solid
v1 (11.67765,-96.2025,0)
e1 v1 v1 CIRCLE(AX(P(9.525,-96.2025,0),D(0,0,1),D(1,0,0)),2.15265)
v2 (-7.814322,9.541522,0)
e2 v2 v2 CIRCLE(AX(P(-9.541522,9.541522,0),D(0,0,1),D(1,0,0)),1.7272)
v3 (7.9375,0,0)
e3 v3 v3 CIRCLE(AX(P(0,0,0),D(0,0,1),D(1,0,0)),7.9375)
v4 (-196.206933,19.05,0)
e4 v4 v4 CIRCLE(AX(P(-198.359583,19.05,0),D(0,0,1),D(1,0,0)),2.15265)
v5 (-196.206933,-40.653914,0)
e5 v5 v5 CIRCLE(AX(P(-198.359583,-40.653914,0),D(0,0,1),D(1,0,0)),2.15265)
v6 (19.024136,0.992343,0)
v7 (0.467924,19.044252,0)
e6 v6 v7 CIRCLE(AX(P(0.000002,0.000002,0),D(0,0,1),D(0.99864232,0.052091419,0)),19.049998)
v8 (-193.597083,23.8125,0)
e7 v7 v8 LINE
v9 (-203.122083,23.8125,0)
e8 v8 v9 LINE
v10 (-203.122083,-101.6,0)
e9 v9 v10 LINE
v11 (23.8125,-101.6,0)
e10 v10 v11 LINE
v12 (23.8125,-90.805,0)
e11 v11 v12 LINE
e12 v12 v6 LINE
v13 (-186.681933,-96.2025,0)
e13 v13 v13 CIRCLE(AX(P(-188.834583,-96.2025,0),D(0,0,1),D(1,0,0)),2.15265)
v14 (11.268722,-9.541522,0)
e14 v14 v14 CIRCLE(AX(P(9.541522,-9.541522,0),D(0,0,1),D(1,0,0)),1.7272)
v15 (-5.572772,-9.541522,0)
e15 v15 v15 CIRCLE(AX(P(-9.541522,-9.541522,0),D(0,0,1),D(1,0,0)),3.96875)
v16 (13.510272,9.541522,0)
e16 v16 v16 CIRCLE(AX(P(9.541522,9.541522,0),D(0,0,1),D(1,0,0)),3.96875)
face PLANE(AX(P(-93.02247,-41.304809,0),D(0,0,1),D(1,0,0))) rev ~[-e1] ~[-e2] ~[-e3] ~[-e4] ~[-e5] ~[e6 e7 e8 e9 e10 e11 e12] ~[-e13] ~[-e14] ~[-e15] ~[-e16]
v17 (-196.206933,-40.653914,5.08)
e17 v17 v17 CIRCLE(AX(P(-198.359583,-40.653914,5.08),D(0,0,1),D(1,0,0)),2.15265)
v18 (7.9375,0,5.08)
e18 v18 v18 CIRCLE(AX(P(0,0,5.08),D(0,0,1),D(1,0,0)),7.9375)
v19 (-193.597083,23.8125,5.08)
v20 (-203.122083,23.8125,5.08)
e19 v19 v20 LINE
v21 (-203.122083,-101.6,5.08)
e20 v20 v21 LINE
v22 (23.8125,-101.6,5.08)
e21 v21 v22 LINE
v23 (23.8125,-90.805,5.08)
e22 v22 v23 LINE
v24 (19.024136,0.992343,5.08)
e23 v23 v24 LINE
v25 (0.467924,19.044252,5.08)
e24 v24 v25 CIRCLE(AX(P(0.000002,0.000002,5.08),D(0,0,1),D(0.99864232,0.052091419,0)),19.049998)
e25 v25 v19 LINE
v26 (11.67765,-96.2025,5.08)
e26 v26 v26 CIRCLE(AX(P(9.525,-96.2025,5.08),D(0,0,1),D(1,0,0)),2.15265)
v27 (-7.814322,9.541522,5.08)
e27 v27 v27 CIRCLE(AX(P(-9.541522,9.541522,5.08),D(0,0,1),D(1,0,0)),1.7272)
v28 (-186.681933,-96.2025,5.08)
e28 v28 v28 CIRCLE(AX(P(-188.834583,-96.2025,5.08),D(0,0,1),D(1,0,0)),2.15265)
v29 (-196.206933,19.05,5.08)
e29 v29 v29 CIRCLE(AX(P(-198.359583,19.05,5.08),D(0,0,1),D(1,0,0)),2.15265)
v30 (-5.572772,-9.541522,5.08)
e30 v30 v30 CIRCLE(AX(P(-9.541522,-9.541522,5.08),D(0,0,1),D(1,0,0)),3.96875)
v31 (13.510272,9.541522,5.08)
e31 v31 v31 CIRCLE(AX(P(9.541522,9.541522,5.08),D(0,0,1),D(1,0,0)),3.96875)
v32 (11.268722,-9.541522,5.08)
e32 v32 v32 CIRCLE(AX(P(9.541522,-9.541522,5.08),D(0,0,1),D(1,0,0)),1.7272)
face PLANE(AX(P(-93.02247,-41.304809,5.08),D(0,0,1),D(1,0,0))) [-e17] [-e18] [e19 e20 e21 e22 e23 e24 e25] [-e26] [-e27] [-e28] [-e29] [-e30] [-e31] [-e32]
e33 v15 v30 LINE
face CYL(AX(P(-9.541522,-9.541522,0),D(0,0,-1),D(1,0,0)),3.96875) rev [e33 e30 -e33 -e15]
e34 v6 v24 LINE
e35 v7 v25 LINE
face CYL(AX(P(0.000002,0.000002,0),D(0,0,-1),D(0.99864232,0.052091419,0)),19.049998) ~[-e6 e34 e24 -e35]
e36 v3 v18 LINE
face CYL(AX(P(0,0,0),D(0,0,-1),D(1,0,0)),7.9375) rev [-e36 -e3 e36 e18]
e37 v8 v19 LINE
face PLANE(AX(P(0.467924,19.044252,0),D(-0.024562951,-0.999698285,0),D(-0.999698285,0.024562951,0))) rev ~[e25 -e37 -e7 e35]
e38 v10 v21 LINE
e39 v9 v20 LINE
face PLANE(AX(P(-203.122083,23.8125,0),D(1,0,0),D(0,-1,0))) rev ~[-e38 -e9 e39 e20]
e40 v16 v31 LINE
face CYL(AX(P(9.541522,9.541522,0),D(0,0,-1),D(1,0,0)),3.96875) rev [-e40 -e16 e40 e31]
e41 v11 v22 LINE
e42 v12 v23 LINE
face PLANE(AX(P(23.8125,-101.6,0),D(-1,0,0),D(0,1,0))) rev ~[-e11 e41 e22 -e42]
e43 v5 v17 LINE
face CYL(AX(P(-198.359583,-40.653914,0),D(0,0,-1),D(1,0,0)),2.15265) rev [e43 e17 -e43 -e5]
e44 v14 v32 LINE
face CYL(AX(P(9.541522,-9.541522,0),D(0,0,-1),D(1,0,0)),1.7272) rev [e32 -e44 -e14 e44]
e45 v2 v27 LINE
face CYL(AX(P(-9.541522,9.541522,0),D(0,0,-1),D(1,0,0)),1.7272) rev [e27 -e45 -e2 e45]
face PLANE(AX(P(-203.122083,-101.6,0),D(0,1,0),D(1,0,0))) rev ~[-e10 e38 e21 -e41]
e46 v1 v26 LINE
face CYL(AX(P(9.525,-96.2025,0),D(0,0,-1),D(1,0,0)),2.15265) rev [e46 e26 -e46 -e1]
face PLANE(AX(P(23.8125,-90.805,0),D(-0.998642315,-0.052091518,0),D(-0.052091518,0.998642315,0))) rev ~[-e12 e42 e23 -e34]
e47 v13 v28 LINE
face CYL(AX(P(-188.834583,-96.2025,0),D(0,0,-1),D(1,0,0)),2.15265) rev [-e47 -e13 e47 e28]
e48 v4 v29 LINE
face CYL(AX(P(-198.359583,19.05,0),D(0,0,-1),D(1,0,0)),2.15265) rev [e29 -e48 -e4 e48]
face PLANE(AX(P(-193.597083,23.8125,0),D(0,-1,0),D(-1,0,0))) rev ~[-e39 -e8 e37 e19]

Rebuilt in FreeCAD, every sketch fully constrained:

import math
import FreeCAD as App
import Part
import Sketcher
from FreeCAD import Vector
Q = App.Units.Quantity

doc = App.newDocument("Part")
params = doc.addObject("Spreadsheet::Sheet", "Params")
for row, (alias, value) in enumerate([
    ("sketch1_radius", "0.7499999 in"),
    ("sketch1_diameter", "0.3125 in"),
    ("sketch1_diameter2", "0.136 in"),
    ("sketch1_diameter3", "0.625 in"),
    ("sketch1_width", "0.375 in"),
    ("pad1_length", "0.2 in"),
], start=1):
    params.set(f"A{row}", alias)
    params.set(f"B{row}", "=" + value)
    params.setAlias(f"B{row}", alias)

body = doc.addObject("PartDesign::Body", "Body")

# Sketch on XY plane
sketch1 = body.newObject("Sketcher::SketchObject", "Sketch")
sketch1.AttachmentSupport = (doc.getObject("XY_Plane"), [""])
sketch1.MapMode = "FlatFace"
sketch1.addGeometry(Part.LineSegment(Vector(0.5, 19, 0), Vector(-193.6, 23.8, 0)), False)
sketch1.addGeometry(Part.LineSegment(Vector(-193.6, 23.8, 0), Vector(-203.1, 23.8, 0)), False)
sketch1.addGeometry(Part.LineSegment(Vector(-203.1, 23.8, 0), Vector(-203.1, -101.6, 0)), False)
sketch1.addGeometry(Part.LineSegment(Vector(-203.1, -101.6, 0), Vector(23.8, -101.6, 0)), False)
sketch1.addGeometry(Part.LineSegment(Vector(23.8, -101.6, 0), Vector(23.8, -90.8, 0)), False)
sketch1.addGeometry(Part.LineSegment(Vector(23.8, -90.8, 0), Vector(19, 1, 0)), False)
sketch1.addGeometry(Part.ArcOfCircle(Part.Circle(Vector(0, 0, 0), Vector(0, 0, 1), 19), math.radians(3), math.radians(89)), False)
sketch1.addGeometry(Part.Circle(Vector(-188.8, -96.2, 0), Vector(0, 0, 1), 2.2), False)
sketch1.addGeometry(Part.Circle(Vector(-198.4, -40.7, 0), Vector(0, 0, 1), 2.2), False)
sketch1.addGeometry(Part.Circle(Vector(9.5, -96.2, 0), Vector(0, 0, 1), 2.2), False)
sketch1.addGeometry(Part.Circle(Vector(-198.4, 19.1, 0), Vector(0, 0, 1), 2.2), False)
sketch1.addGeometry(Part.Circle(Vector(-9.5, -9.5, 0), Vector(0, 0, 1), 4), False)
sketch1.addGeometry(Part.Circle(Vector(9.5, -9.5, 0), Vector(0, 0, 1), 1.7), False)
sketch1.addGeometry(Part.Circle(Vector(0, 0, 0), Vector(0, 0, 1), 7.9), False)
sketch1.addGeometry(Part.Circle(Vector(-9.5, 9.5, 0), Vector(0, 0, 1), 1.7), False)
sketch1.addGeometry(Part.Circle(Vector(9.5, 9.5, 0), Vector(0, 0, 1), 4), False)
sketch1.addConstraint(Sketcher.Constraint("Coincident", 0, 2, 1, 1))
sketch1.addConstraint(Sketcher.Constraint("Coincident", 1, 2, 2, 1))
sketch1.addConstraint(Sketcher.Constraint("Coincident", 2, 2, 3, 1))
sketch1.addConstraint(Sketcher.Constraint("Coincident", 3, 2, 4, 1))
sketch1.addConstraint(Sketcher.Constraint("Coincident", 4, 2, 5, 1))
sketch1.addConstraint(Sketcher.Constraint("Tangent", 5, 2, 6, 1))
sketch1.addConstraint(Sketcher.Constraint("Tangent", 6, 2, 0, 1))
sketch1.addConstraint(Sketcher.Constraint("Horizontal", 1))
sketch1.addConstraint(Sketcher.Constraint("Vertical", 2))
sketch1.addConstraint(Sketcher.Constraint("Horizontal", 3))
sketch1.addConstraint(Sketcher.Constraint("Vertical", 4))
sketch1.addConstraint(Sketcher.Constraint("Coincident", 6, 3, -1, 1))
sketch1.addConstraint(Sketcher.Constraint("Coincident", 13, 3, -1, 1))
sketch1.addConstraint(Sketcher.Constraint("Equal", 7, 8))
sketch1.addConstraint(Sketcher.Constraint("Equal", 8, 9))
sketch1.addConstraint(Sketcher.Constraint("Equal", 9, 10))
sketch1.addConstraint(Sketcher.Constraint("Equal", 12, 14))
sketch1.addConstraint(Sketcher.Constraint("Equal", 11, 15))
sketch1.addConstraint(Sketcher.Constraint("Symmetric", 12, 3, 14, 3, -1, 1))
sketch1.addConstraint(Sketcher.Constraint("Symmetric", 11, 3, 15, 3, -1, 1))
sketch1.addConstraint(Sketcher.Constraint("Symmetric", 11, 3, 12, 3, -2))
sketch1.addConstraint(Sketcher.Constraint("Horizontal", 7, 3, 9, 3))
sketch1.addConstraint(Sketcher.Constraint("Vertical", 8, 3, 10, 3))
sketch1.addConstraint(Sketcher.Constraint("Radius", 6, Q("0.7499999 in")))
sketch1.addConstraint(Sketcher.Constraint("Diameter", 11, Q("0.3125 in")))
sketch1.addConstraint(Sketcher.Constraint("Diameter", 12, Q("0.136 in")))
sketch1.addConstraint(Sketcher.Constraint("Diameter", 13, Q("0.625 in")))
sketch1.addConstraint(Sketcher.Constraint("DistanceY", 2, 2, -1, 1, Q("4 in")))
sketch1.addConstraint(Sketcher.Constraint("Diameter", 7, Q("0.1695 in")))
sketch1.addConstraint(Sketcher.Constraint("DistanceX", 1, 2, 1, 1, Q("0.375 in")))
sketch1.addConstraint(Sketcher.Constraint("DistanceY", 2, 2, 2, 1, Q("4.9375 in")))
sketch1.addConstraint(Sketcher.Constraint("DistanceY", 4, 1, 4, 2, Q("0.425 in")))
sketch1.addConstraint(Sketcher.Constraint("DistanceY", -1, 1, 10, 3, Q("0.75 in")))
sketch1.addConstraint(Sketcher.Constraint("DistanceX", -1, 1, 9, 3, Q("0.375 in")))
sketch1.addConstraint(Sketcher.Constraint("DistanceX", -1, 1, 3, 2, Q("0.9375 in")))
sketch1.addConstraint(Sketcher.Constraint("DistanceX", 8, 3, 7, 3, Q("0.375 in")))
sketch1.addConstraint(Sketcher.Constraint("DistanceX", 10, 3, 0, 2, Q("0.1875 in")))
sketch1.addConstraint(Sketcher.Constraint("DistanceY", 7, 3, 0, 2, Q("4.725 in")))
sketch1.addConstraint(Sketcher.Constraint("DistanceX", 6, 2, 15, 3, Q("9.073598 mm")))
sketch1.addConstraint(Sketcher.Constraint("DistanceX", 3, 1, 3, 2, Q("226.934583 mm")))
sketch1.addConstraint(Sketcher.Constraint("DistanceY", 9, 3, 11, 3, Q("86.660978 mm")))
sketch1.addConstraint(Sketcher.Constraint("DistanceY", 8, 3, 11, 3, Q("31.112392 mm")))
sketch1.setExpression("Constraints[23]", "Params.sketch1_radius")
sketch1.setExpression("Constraints[24]", "Params.sketch1_diameter")
sketch1.setExpression("Constraints[25]", "Params.sketch1_diameter2")
sketch1.setExpression("Constraints[26]", "Params.sketch1_diameter3")
sketch1.setExpression("Constraints[29]", "Params.sketch1_width")
pad1 = body.newObject("PartDesign::Pad", "Pad")
pad1.Profile = sketch1
pad1.setExpression("Length", "Params.pad1_length")

doc.recompute()
